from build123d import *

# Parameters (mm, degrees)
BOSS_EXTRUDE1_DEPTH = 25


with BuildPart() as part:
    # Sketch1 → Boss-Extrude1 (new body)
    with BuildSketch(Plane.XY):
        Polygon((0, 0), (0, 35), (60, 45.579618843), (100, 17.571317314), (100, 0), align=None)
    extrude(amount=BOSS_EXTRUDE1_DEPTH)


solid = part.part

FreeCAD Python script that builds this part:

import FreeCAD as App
import Part
import Sketcher

V = App.Vector
Q = App.Units.Quantity


def add_polygon(sketch, points):
    """Adds a closed chain of lines whose ends are joined by coincident constraints."""
    first, n = sketch.GeometryCount, len(points)
    for a, b in zip(points, points[1:] + points[:1]):
        sketch.addGeometry(Part.LineSegment(App.Vector(*a, 0), App.Vector(*b, 0)), False)
    for i in range(n):
        sketch.addConstraint(Sketcher.Constraint("Coincident", first + i, 2, first + (i + 1) % n, 1))

doc = App.newDocument("Part")
body = doc.addObject("PartDesign::Body", "Body")

# Sketch on XY plane
sketch1 = body.newObject("Sketcher::SketchObject", "Sketch")
sketch1.AttachmentSupport = (doc.getObject("XY_Plane"), [""])
sketch1.MapMode = "FlatFace"
add_polygon(sketch1, [(0, 35), (0, 0), (100, 0), (100, 18), (60, 46)])  # lines 0-4
sketch1.addConstraint([
    Sketcher.Constraint("Vertical", 0),
    Sketcher.Constraint("Horizontal", 1),
    Sketcher.Constraint("Vertical", 2),
    Sketcher.Constraint("Coincident", 0, 2, -1, 1),
    Sketcher.Constraint("DistanceX", 1, 1, 1, 2, Q("100 mm")),
    Sketcher.Constraint("DistanceY", 0, 2, 0, 1, Q("35 mm")),
    Sketcher.Constraint("Angle", 3, Q("145 deg")),
    Sketcher.Constraint("Angle", 4, Q("-170 deg")),
    Sketcher.Constraint("DistanceX", -1, 1, 3, 2, Q("60 mm")),
])
pad1 = body.newObject("PartDesign::Pad", "Pad")
pad1.Profile = sketch1
pad1.Length = 25

doc.recompute()
